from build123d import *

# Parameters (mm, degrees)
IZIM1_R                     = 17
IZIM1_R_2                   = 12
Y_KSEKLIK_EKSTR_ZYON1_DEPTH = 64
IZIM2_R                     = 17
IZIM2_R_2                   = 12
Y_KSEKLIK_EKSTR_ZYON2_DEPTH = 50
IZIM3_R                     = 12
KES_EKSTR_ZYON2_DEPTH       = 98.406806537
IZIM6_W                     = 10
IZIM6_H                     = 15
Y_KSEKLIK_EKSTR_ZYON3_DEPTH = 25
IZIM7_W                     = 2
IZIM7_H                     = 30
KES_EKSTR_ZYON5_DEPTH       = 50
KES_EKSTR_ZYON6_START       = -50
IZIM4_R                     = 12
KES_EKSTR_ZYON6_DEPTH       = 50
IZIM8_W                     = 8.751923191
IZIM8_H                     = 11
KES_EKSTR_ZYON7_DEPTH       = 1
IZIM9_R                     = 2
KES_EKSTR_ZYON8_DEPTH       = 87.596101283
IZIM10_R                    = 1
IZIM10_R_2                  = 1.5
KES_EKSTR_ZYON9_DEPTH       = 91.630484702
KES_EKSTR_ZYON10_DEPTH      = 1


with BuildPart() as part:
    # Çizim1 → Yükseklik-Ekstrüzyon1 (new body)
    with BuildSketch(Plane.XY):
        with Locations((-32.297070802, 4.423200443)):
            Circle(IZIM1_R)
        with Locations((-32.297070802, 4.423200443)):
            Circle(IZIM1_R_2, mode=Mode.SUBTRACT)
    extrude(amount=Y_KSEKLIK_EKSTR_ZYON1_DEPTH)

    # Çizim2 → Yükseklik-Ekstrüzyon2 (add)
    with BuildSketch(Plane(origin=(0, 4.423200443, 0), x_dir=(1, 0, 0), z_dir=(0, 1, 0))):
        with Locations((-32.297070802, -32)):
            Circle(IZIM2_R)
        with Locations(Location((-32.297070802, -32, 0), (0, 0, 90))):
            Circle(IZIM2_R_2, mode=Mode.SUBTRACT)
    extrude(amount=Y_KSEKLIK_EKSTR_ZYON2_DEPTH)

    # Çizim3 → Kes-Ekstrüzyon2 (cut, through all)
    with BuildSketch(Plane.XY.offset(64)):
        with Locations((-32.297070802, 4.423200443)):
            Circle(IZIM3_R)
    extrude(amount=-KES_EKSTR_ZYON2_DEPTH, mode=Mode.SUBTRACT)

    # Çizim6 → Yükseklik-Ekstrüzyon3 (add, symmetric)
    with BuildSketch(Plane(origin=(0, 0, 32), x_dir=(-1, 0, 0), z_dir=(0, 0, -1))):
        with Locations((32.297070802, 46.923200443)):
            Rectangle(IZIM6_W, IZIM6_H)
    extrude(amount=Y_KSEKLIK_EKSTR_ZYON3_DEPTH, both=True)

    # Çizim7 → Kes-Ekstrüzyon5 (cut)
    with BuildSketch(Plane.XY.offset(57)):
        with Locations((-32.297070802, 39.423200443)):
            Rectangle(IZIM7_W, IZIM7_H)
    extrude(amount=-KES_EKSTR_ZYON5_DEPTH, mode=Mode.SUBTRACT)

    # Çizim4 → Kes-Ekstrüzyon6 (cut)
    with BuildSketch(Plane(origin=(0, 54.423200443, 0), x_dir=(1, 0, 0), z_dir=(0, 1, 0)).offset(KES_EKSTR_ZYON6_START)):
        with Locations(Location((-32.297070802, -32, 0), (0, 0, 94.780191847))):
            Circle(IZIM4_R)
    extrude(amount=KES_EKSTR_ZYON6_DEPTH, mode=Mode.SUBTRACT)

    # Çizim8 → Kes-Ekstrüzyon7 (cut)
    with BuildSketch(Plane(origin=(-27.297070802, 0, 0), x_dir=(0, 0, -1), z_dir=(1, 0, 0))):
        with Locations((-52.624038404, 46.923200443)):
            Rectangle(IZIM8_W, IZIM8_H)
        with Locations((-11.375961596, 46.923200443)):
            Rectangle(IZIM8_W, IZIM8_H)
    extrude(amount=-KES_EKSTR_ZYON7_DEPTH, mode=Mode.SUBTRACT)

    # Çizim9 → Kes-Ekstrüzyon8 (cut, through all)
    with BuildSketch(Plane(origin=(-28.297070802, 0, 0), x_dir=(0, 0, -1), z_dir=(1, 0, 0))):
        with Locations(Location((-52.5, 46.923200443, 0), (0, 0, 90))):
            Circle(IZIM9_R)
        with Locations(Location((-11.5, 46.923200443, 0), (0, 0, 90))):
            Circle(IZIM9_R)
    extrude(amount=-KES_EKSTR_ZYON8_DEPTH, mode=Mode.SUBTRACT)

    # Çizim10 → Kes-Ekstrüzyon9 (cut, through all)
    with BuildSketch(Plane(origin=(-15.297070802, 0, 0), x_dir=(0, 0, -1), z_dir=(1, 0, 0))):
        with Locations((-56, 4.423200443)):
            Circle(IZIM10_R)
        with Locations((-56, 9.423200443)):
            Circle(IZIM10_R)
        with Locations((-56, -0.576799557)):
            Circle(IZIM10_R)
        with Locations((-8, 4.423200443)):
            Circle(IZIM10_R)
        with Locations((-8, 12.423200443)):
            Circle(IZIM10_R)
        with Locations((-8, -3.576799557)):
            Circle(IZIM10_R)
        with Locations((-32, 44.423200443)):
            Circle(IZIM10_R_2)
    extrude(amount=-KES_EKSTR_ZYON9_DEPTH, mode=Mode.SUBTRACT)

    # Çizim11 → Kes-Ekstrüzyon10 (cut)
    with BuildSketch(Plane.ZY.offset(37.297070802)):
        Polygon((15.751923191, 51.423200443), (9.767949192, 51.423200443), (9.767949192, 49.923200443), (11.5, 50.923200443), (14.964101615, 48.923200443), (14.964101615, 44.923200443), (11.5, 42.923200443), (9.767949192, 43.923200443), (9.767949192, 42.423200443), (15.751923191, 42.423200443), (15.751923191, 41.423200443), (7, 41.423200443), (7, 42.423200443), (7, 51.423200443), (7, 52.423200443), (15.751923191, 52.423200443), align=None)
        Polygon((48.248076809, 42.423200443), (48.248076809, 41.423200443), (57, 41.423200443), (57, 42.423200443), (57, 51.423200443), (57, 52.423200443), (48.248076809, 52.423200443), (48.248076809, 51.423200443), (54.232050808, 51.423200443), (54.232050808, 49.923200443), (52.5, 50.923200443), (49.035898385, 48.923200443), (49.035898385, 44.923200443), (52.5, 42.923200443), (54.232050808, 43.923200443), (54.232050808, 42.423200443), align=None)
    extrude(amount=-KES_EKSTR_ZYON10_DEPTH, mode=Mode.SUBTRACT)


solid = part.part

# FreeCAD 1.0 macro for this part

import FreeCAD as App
import Part
import Sketcher
from FreeCAD import Vector
Q = App.Units.Quantity

doc = App.newDocument("Part")
body = doc.addObject("PartDesign::Body", "Body")

# Sketch on XY plane
sketch1 = body.newObject("Sketcher::SketchObject", "Sketch")
sketch1.AttachmentSupport = (doc.getObject("XY_Plane"), [""])
sketch1.MapMode = "FlatFace"
sketch1.addGeometry([
    Part.Circle(Vector(-32, 4, 0), Vector(0, 0, 1), 17),
    Part.Circle(Vector(-32, 4, 0), Vector(0, 0, 1), 12),
], False)
sketch1.addConstraint([
    Sketcher.Constraint("Coincident", 1, 3, 0, 3),
    Sketcher.Constraint("Diameter", 0, 34.0),
    Sketcher.Constraint("Diameter", 1, 24.0),
    Sketcher.Constraint("DistanceY", -1, 1, 0, 3, 4.4232),
    Sketcher.Constraint("DistanceX", 0, 3, -1, 1, 32.297071),
])
pad1 = body.newObject("PartDesign::Pad", "Pad")
pad1.Profile = sketch1
pad1.Length = 64

# Sketch on XZ plane
sketch2 = body.newObject("Sketcher::SketchObject", "Sketch001")
sketch2.AttachmentSupport = (doc.getObject("XZ_Plane"), [""])
sketch2.MapMode = "FlatFace"
sketch2.AttachmentOffset = App.Placement(Vector(0, 0, -4.4232), App.Rotation())
sketch2.addGeometry([
    Part.Circle(Vector(-32, 32, 0), Vector(0, 0, 1), 17),
    Part.Circle(Vector(-32, 32, 0), Vector(0, 0, 1), 12),
], False)
sketch2.addConstraint([
    Sketcher.Constraint("Coincident", 1, 3, 0, 3),
    Sketcher.Constraint("Diameter", 0, 34.0),
    Sketcher.Constraint("Diameter", 1, 24.0),
    Sketcher.Constraint("DistanceY", -1, 1, 0, 3, 32.0),
    Sketcher.Constraint("DistanceX", 0, 3, -1, 1, 32.297071),
])
pad2 = body.newObject("PartDesign::Pad", "Pad001")
pad2.Profile = sketch2
pad2.Length = 50
pad2.Reversed = True

# Sketch on XY plane
sketch3 = body.newObject("Sketcher::SketchObject", "Sketch002")
sketch3.AttachmentSupport = (doc.getObject("XY_Plane"), [""])
sketch3.MapMode = "FlatFace"
sketch3.AttachmentOffset = App.Placement(Vector(0, 0, 64), App.Rotation())
sketch3.addGeometry(Part.Circle(Vector(-32, 4, 0), Vector(0, 0, 1), 12), False)
sketch3.addConstraint([
    Sketcher.Constraint("Diameter", 0, 24.0),
    Sketcher.Constraint("DistanceY", -1, 1, 0, 3, 4.4232),
    Sketcher.Constraint("DistanceX", 0, 3, -1, 1, 32.297071),
])
pocket1 = body.newObject("PartDesign::Pocket", "Pocket")
pocket1.Profile = sketch3
pocket1.Type = "ThroughAll"

# Sketch on XY plane
sketch4 = body.newObject("Sketcher::SketchObject", "Sketch003")
sketch4.AttachmentSupport = (doc.getObject("XY_Plane"), [""])
sketch4.MapMode = "FlatFace"
sketch4.AttachmentOffset = App.Placement(Vector(0, 0, 32), App.Rotation())
sketch4.addGeometry([
    Part.LineSegment(Vector(-27, 54, 0), Vector(-27, 39, 0)),
    Part.LineSegment(Vector(-27, 39, 0), Vector(-37, 39, 0)),
    Part.LineSegment(Vector(-37, 39, 0), Vector(-37, 54, 0)),
    Part.LineSegment(Vector(-37, 54, 0), Vector(-27, 54, 0)),
], False)
sketch4.addConstraint([
    Sketcher.Constraint("Coincident", 0, 2, 1, 1),
    Sketcher.Constraint("Coincident", 1, 2, 2, 1),
    Sketcher.Constraint("Coincident", 2, 2, 3, 1),
    Sketcher.Constraint("Coincident", 3, 2, 0, 1),
    Sketcher.Constraint("Vertical", 0),
    Sketcher.Constraint("Horizontal", 1),
    Sketcher.Constraint("Vertical", 2),
    Sketcher.Constraint("Horizontal", 3),
    Sketcher.Constraint("DistanceX", 1, 2, 1, 1, 10.0),
    Sketcher.Constraint("DistanceY", 0, 2, 0, 1, 15.0),
    Sketcher.Constraint("DistanceY", -1, 1, 0, 2, 39.4232),
    Sketcher.Constraint("DistanceX", 0, 2, -1, 1, 27.297071),
])
pad3 = body.newObject("PartDesign::Pad", "Pad002")
pad3.Profile = sketch4
pad3.Length = 50
pad3.Midplane = True

# Sketch on XY plane
sketch5 = body.newObject("Sketcher::SketchObject", "Sketch004")
sketch5.AttachmentSupport = (doc.getObject("XY_Plane"), [""])
sketch5.MapMode = "FlatFace"
sketch5.AttachmentOffset = App.Placement(Vector(0, 0, 57), App.Rotation())
sketch5.addGeometry([
    Part.LineSegment(Vector(-33.3, 54.4, 0), Vector(-33.3, 24.4, 0)),
    Part.LineSegment(Vector(-33.3, 24.4, 0), Vector(-31.3, 24.4, 0)),
    Part.LineSegment(Vector(-31.3, 24.4, 0), Vector(-31.3, 54.4, 0)),
    Part.LineSegment(Vector(-31.3, 54.4, 0), Vector(-33.3, 54.4, 0)),
], False)
sketch5.addConstraint([
    Sketcher.Constraint("Coincident", 0, 2, 1, 1),
    Sketcher.Constraint("Coincident", 1, 2, 2, 1),
    Sketcher.Constraint("Coincident", 2, 2, 3, 1),
    Sketcher.Constraint("Coincident", 3, 2, 0, 1),
    Sketcher.Constraint("Vertical", 0),
    Sketcher.Constraint("Horizontal", 1),
    Sketcher.Constraint("Vertical", 2),
    Sketcher.Constraint("Horizontal", 3),
    Sketcher.Constraint("DistanceX", 1, 1, 1, 2, 2.0),
    Sketcher.Constraint("DistanceY", 0, 2, 0, 1, 30.0),
    Sketcher.Constraint("DistanceY", -1, 1, 0, 2, 24.4232),
    Sketcher.Constraint("DistanceX", 0, 2, -1, 1, 33.297071),
])
pocket2 = body.newObject("PartDesign::Pocket", "Pocket001")
pocket2.Profile = sketch5
pocket2.Length = 50

# Sketch on XZ plane
sketch6 = body.newObject("Sketcher::SketchObject", "Sketch005")
sketch6.AttachmentSupport = (doc.getObject("XZ_Plane"), [""])
sketch6.MapMode = "FlatFace"
sketch6.AttachmentOffset = App.Placement(Vector(0, 0, -4.4232), App.Rotation())
sketch6.addGeometry(Part.Circle(Vector(-32, 32, 0), Vector(0, 0, 1), 12), False)
sketch6.addConstraint([
    Sketcher.Constraint("Diameter", 0, 24.0),
    Sketcher.Constraint("DistanceY", -1, 1, 0, 3, 32.0),
    Sketcher.Constraint("DistanceX", 0, 3, -1, 1, 32.297071),
])
pocket3 = body.newObject("PartDesign::Pocket", "Pocket002")
pocket3.Profile = sketch6
pocket3.Length = 50

# Sketch on YZ plane
sketch7 = body.newObject("Sketcher::SketchObject", "Sketch006")
sketch7.AttachmentSupport = (doc.getObject("YZ_Plane"), [""])
sketch7.MapMode = "FlatFace"
sketch7.AttachmentOffset = App.Placement(Vector(0, 0, -27.297071), App.Rotation())
sketch7.addGeometry([
    Part.LineSegment(Vector(52, 57, 0), Vector(41, 57, 0)),  # 0
    Part.LineSegment(Vector(41, 57, 0), Vector(41, 48, 0)),  # 1
    Part.LineSegment(Vector(41, 48, 0), Vector(52, 48, 0)),  # 2
    Part.LineSegment(Vector(52, 48, 0), Vector(52, 57, 0)),  # 3
    Part.LineSegment(Vector(52, 16, 0), Vector(41, 16, 0)),  # 4
    Part.LineSegment(Vector(41, 16, 0), Vector(41, 7, 0)),  # 5
    Part.LineSegment(Vector(41, 7, 0), Vector(52, 7, 0)),  # 6
    Part.LineSegment(Vector(52, 7, 0), Vector(52, 16, 0)),  # 7
], False)
sketch7.addConstraint([
    Sketcher.Constraint("Coincident", 0, 2, 1, 1),
    Sketcher.Constraint("Coincident", 1, 2, 2, 1),
    Sketcher.Constraint("Coincident", 2, 2, 3, 1),
    Sketcher.Constraint("Coincident", 3, 2, 0, 1),
    Sketcher.Constraint("Coincident", 4, 2, 5, 1),
    Sketcher.Constraint("Coincident", 5, 2, 6, 1),
    Sketcher.Constraint("Coincident", 6, 2, 7, 1),
    Sketcher.Constraint("Coincident", 7, 2, 4, 1),
    Sketcher.Constraint("Horizontal", 0),
    Sketcher.Constraint("Vertical", 1),
    Sketcher.Constraint("Horizontal", 2),
    Sketcher.Constraint("Vertical", 3),
    Sketcher.Constraint("Horizontal", 4),
    Sketcher.Constraint("Vertical", 5),
    Sketcher.Constraint("Horizontal", 6),
    Sketcher.Constraint("Vertical", 7),
    Sketcher.Constraint("Vertical", 1, 2, 4, 2),
    Sketcher.Constraint("Vertical", 3, 2, 6, 2),
    Sketcher.Constraint("Equal", 3, 5),
    Sketcher.Constraint("DistanceX", 0, 2, 0, 1, 11.0),
    Sketcher.Constraint("DistanceY", -1, 1, 0, 2, 57.0),
    Sketcher.Constraint("DistanceY", -1, 1, 5, 2, 7.0),
    Sketcher.Constraint("DistanceX", -1, 1, 0, 2, 41.4232),
    Sketcher.Constraint("DistanceY", 1, 2, 1, 1, 8.751923),
])
pocket4 = body.newObject("PartDesign::Pocket", "Pocket003")
pocket4.Profile = sketch7
pocket4.Length = 1

# Sketch on YZ plane
sketch8 = body.newObject("Sketcher::SketchObject", "Sketch007")
sketch8.AttachmentSupport = (doc.getObject("YZ_Plane"), [""])
sketch8.MapMode = "FlatFace"
sketch8.AttachmentOffset = App.Placement(Vector(0, 0, -28.297071), App.Rotation())
sketch8.addGeometry([
    Part.Circle(Vector(46.9, 52.5, 0), Vector(0, 0, 1), 2),
    Part.Circle(Vector(46.9, 11.5, 0), Vector(0, 0, 1), 2),
], False)
sketch8.addConstraint([
    Sketcher.Constraint("Equal", 0, 1),
    Sketcher.Constraint("Vertical", 0, 3, 1, 3),
    Sketcher.Constraint("Diameter", 0, 4.0),
    Sketcher.Constraint("DistanceY", 1, 3, 0, 3, 41.0),
    Sketcher.Constraint("DistanceY", -1, 1, 0, 3, 52.5),
    Sketcher.Constraint("DistanceX", -1, 1, 0, 3, 46.9232),
])
pocket5 = body.newObject("PartDesign::Pocket", "Pocket004")
pocket5.Profile = sketch8
pocket5.Type = "ThroughAll"

# Sketch on YZ plane
sketch9 = body.newObject("Sketcher::SketchObject", "Sketch008")
sketch9.AttachmentSupport = (doc.getObject("YZ_Plane"), [""])
sketch9.MapMode = "FlatFace"
sketch9.AttachmentOffset = App.Placement(Vector(0, 0, -15.297071), App.Rotation())
sketch9.addGeometry([
    Part.Circle(Vector(4.4, 56, 0), Vector(0, 0, 1), 1),  # 0
    Part.Circle(Vector(9.4, 56, 0), Vector(0, 0, 1), 1),  # 1
    Part.Circle(Vector(-0.6, 56, 0), Vector(0, 0, 1), 1),  # 2
    Part.Circle(Vector(4.4, 8, 0), Vector(0, 0, 1), 1),  # 3
    Part.Circle(Vector(12.4, 8, 0), Vector(0, 0, 1), 1),  # 4
    Part.Circle(Vector(-3.6, 8, 0), Vector(0, 0, 1), 1),  # 5
    Part.Circle(Vector(44.4, 32, 0), Vector(0, 0, 1), 1.5),  # 6
], False)
sketch9.addConstraint([
    Sketcher.Constraint("Equal", 0, 1),
    Sketcher.Constraint("Equal", 1, 2),
    Sketcher.Constraint("Equal", 2, 3),
    Sketcher.Constraint("Equal", 3, 4),
    Sketcher.Constraint("Equal", 4, 5),
    Sketcher.Constraint("Horizontal", 0, 3, 1, 3),
    Sketcher.Constraint("Horizontal", 1, 3, 2, 3),
    Sketcher.Constraint("Horizontal", 3, 3, 4, 3),
    Sketcher.Constraint("Horizontal", 4, 3, 5, 3),
    Sketcher.Constraint("Vertical", 0, 3, 3, 3),
    Sketcher.Constraint("Diameter", 0, 2.0),
    Sketcher.Constraint("Diameter", 6, 3.0),
    Sketcher.Constraint("DistanceY", -1, 1, 0, 3, 56.0),
    Sketcher.Constraint("DistanceY", -1, 1, 3, 3, 8.0),
    Sketcher.Constraint("DistanceY", -1, 1, 6, 3, 32.0),
    Sketcher.Constraint("DistanceX", 0, 3, 1, 3, 5.0),
    Sketcher.Constraint("DistanceX", 2, 3, 0, 3, 5.0),
    Sketcher.Constraint("DistanceX", 3, 3, 4, 3, 8.0),
    Sketcher.Constraint("DistanceX", 5, 3, 3, 3, 8.0),
    Sketcher.Constraint("DistanceX", 4, 3, 6, 3, 32.0),
    Sketcher.Constraint("DistanceX", -1, 1, 0, 3, 4.4232),
])
pocket6 = body.newObject("PartDesign::Pocket", "Pocket005")
pocket6.Profile = sketch9
pocket6.Type = "ThroughAll"

# Sketch on YZ plane
sketch10 = body.newObject("Sketcher::SketchObject", "Sketch009")
sketch10.AttachmentSupport = (doc.getObject("YZ_Plane"), [""])
sketch10.MapMode = "FlatFace"
sketch10.AttachmentOffset = App.Placement(Vector(0, 0, -37.297071), App.Rotation())
sketch10.addGeometry([
    Part.LineSegment(Vector(51.4, 9.8, 0), Vector(51.4, 15.8, 0)),  # 0
    Part.LineSegment(Vector(51.4, 15.8, 0), Vector(52.4, 15.8, 0)),  # 1
    Part.LineSegment(Vector(52.4, 15.8, 0), Vector(52.4, 7, 0)),  # 2
    Part.LineSegment(Vector(52.4, 7, 0), Vector(41.4, 7, 0)),  # 3
    Part.LineSegment(Vector(41.4, 7, 0), Vector(41.4, 15.8, 0)),  # 4
    Part.LineSegment(Vector(41.4, 15.8, 0), Vector(42.4, 15.8, 0)),  # 5
    Part.LineSegment(Vector(42.4, 15.8, 0), Vector(42.4, 9.8, 0)),  # 6
    Part.LineSegment(Vector(42.4, 9.8, 0), Vector(43.9, 9.8, 0)),  # 7
    Part.LineSegment(Vector(43.9, 9.8, 0), Vector(42.9, 11.5, 0)),  # 8
    Part.LineSegment(Vector(42.9, 11.5, 0), Vector(44.9, 15, 0)),  # 9
    Part.LineSegment(Vector(44.9, 15, 0), Vector(48.9, 15, 0)),  # 10
    Part.LineSegment(Vector(48.9, 15, 0), Vector(50.9, 11.5, 0)),  # 11
    Part.LineSegment(Vector(50.9, 11.5, 0), Vector(49.9, 9.8, 0)),  # 12
    Part.LineSegment(Vector(49.9, 9.8, 0), Vector(51.4, 9.8, 0)),  # 13
    Part.LineSegment(Vector(42.4, 48.2, 0), Vector(41.4, 48.2, 0)),  # 14
    Part.LineSegment(Vector(41.4, 48.2, 0), Vector(41.4, 57, 0)),  # 15
    Part.LineSegment(Vector(41.4, 57, 0), Vector(52.4, 57, 0)),  # 16
    Part.LineSegment(Vector(52.4, 57, 0), Vector(52.4, 48.2, 0)),  # 17
    Part.LineSegment(Vector(52.4, 48.2, 0), Vector(51.4, 48.2, 0)),  # 18
    Part.LineSegment(Vector(51.4, 48.2, 0), Vector(51.4, 54.2, 0)),  # 19
    Part.LineSegment(Vector(51.4, 54.2, 0), Vector(49.9, 54.2, 0)),  # 20
    Part.LineSegment(Vector(49.9, 54.2, 0), Vector(50.9, 52.5, 0)),  # 21
    Part.LineSegment(Vector(50.9, 52.5, 0), Vector(48.9, 49, 0)),  # 22
    Part.LineSegment(Vector(48.9, 49, 0), Vector(44.9, 49, 0)),  # 23
    Part.LineSegment(Vector(44.9, 49, 0), Vector(42.9, 52.5, 0)),  # 24
    Part.LineSegment(Vector(42.9, 52.5, 0), Vector(43.9, 54.2, 0)),  # 25
    Part.LineSegment(Vector(43.9, 54.2, 0), Vector(42.4, 54.2, 0)),  # 26
    Part.LineSegment(Vector(42.4, 54.2, 0), Vector(42.4, 48.2, 0)),  # 27
], False)
sketch10.addConstraint([
    Sketcher.Constraint("Coincident", 0, 2, 1, 1),
    Sketcher.Constraint("Coincident", 1, 2, 2, 1),
    Sketcher.Constraint("Coincident", 2, 2, 3, 1),
    Sketcher.Constraint("Coincident", 3, 2, 4, 1),
    Sketcher.Constraint("Coincident", 4, 2, 5, 1),
    Sketcher.Constraint("Coincident", 5, 2, 6, 1),
    Sketcher.Constraint("Coincident", 6, 2, 7, 1),
    Sketcher.Constraint("Coincident", 7, 2, 8, 1),
    Sketcher.Constraint("Coincident", 8, 2, 9, 1),
    Sketcher.Constraint("Coincident", 9, 2, 10, 1),
    Sketcher.Constraint("Coincident", 10, 2, 11, 1),
    Sketcher.Constraint("Coincident", 11, 2, 12, 1),
    Sketcher.Constraint("Coincident", 12, 2, 13, 1),
    Sketcher.Constraint("Coincident", 13, 2, 0, 1),
    Sketcher.Constraint("Coincident", 14, 2, 15, 1),
    Sketcher.Constraint("Coincident", 15, 2, 16, 1),
    Sketcher.Constraint("Coincident", 16, 2, 17, 1),
    Sketcher.Constraint("Coincident", 17, 2, 18, 1),
    Sketcher.Constraint("Coincident", 18, 2, 19, 1),
    Sketcher.Constraint("Coincident", 19, 2, 20, 1),
    Sketcher.Constraint("Coincident", 20, 2, 21, 1),
    Sketcher.Constraint("Coincident", 21, 2, 22, 1),
    Sketcher.Constraint("Coincident", 22, 2, 23, 1),
    Sketcher.Constraint("Coincident", 23, 2, 24, 1),
    Sketcher.Constraint("Coincident", 24, 2, 25, 1),
    Sketcher.Constraint("Coincident", 25, 2, 26, 1),
    Sketcher.Constraint("Coincident", 26, 2, 27, 1),
    Sketcher.Constraint("Coincident", 27, 2, 14, 1),
    Sketcher.Constraint("Vertical", 0),
    Sketcher.Constraint("Horizontal", 1),
    Sketcher.Constraint("Vertical", 2),
    Sketcher.Constraint("Horizontal", 3),
    Sketcher.Constraint("Vertical", 4),
    Sketcher.Constraint("Horizontal", 5),
    Sketcher.Constraint("Vertical", 6),
    Sketcher.Constraint("Horizontal", 7),
    Sketcher.Constraint("Horizontal", 10),
    Sketcher.Constraint("Horizontal", 13),
    Sketcher.Constraint("Horizontal", 14),
    Sketcher.Constraint("Vertical", 15),
    Sketcher.Constraint("Horizontal", 16),
    Sketcher.Constraint("Vertical", 17),
    Sketcher.Constraint("Horizontal", 18),
    Sketcher.Constraint("Vertical", 19),
    Sketcher.Constraint("Horizontal", 20),
    Sketcher.Constraint("Horizontal", 23),
    Sketcher.Constraint("Horizontal", 26),
    Sketcher.Constraint("Vertical", 27),
    Sketcher.Constraint("Parallel", 8, 11),
    Sketcher.Constraint("Parallel", 9, 12),
    Sketcher.Constraint("Parallel", 11, 21),
    Sketcher.Constraint("Parallel", 12, 22),
    Sketcher.Constraint("Parallel", 21, 24),
    Sketcher.Constraint("Parallel", 22, 25),
    Sketcher.Constraint("Horizontal", 1, 2, 4, 2),
    Sketcher.Constraint("Horizontal", 8, 2, 11, 2),
    Sketcher.Constraint("Horizontal", 7, 2, 12, 2),
    Sketcher.Constraint("Horizontal", 14, 2, 17, 2),
    Sketcher.Constraint("Horizontal", 21, 2, 24, 2),
    Sketcher.Constraint("Horizontal", 20, 2, 25, 2),
    Sketcher.Constraint("Vertical", 4, 2, 14, 2),
    Sketcher.Constraint("Vertical", 2, 2, 16, 2),
    Sketcher.Constraint("Vertical", 13, 2, 18, 2),
    Sketcher.Constraint("Vertical", 12, 2, 20, 2),
    Sketcher.Constraint("Vertical", 11, 2, 21, 2),
    Sketcher.Constraint("Vertical", 10, 2, 22, 2),
    Sketcher.Constraint("Vertical", 9, 2, 23, 2),
    Sketcher.Constraint("Vertical", 8, 2, 24, 2),
    Sketcher.Constraint("Vertical", 6, 2, 26, 2),
    Sketcher.Constraint("Equal", 1, 5),
    Sketcher.Constraint("Equal", 7, 13),
    Sketcher.Constraint("Equal", 4, 15),
    Sketcher.Constraint("Equal", 6, 19),
    Sketcher.Constraint("DistanceX", 1, 1, 1, 2, 1.0),
    Sketcher.Constraint("DistanceX", 3, 2, 3, 1, 11.0),
    Sketcher.Constraint("DistanceX", 10, 1, 10, 2, 4.0),
    Sketcher.Constraint("Angle", 8, Q("120 deg")),
    Sketcher.Constraint("Distance", 8, 2.0),
    Sketcher.Constraint("Distance", 9, 4.0),
    Sketcher.Constraint("DistanceY", -1, 1, 2, 2, 7.0),
    Sketcher.Constraint("DistanceY", -1, 1, 15, 2, 57.0),
    Sketcher.Constraint("DistanceY", -1, 1, 8, 2, 11.5),
    Sketcher.Constraint("DistanceX", -1, 1, 0, 2, 51.4232),
    Sketcher.Constraint("DistanceY", 0, 1, 0, 2, 5.983974),
])
pocket7 = body.newObject("PartDesign::Pocket", "Pocket006")
pocket7.Profile = sketch10
pocket7.Length = 1
pocket7.Reversed = True

doc.recompute()
